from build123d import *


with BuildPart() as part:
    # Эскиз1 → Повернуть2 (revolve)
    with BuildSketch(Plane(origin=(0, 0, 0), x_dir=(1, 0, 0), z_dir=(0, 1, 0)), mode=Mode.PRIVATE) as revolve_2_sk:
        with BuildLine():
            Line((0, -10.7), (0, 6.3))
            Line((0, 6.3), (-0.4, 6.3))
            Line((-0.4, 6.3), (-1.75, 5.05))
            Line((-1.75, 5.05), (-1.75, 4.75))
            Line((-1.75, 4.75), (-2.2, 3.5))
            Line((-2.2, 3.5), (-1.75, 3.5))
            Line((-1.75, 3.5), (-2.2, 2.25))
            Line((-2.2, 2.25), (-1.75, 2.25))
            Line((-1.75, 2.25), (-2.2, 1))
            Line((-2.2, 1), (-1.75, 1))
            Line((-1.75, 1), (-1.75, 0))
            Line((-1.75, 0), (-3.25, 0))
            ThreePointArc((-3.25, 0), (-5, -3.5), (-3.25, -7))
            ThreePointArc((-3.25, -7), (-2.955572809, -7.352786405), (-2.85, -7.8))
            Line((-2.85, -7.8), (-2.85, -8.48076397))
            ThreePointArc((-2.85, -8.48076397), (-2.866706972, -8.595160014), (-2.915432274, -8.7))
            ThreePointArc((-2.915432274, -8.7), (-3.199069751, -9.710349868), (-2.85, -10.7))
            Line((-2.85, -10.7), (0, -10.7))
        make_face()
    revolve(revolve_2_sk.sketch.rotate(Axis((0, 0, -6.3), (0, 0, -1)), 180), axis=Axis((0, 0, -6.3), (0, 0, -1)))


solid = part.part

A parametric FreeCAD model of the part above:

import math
import FreeCAD as App
import Part
import Sketcher

V = App.Vector
Q = App.Units.Quantity

doc = App.newDocument("Part")
body = doc.addObject("PartDesign::Body", "Body")

# Sketch on XZ plane
sketch1 = body.newObject("Sketcher::SketchObject", "Sketch")
sketch1.AttachmentSupport = (doc.getObject("XZ_Plane"), [""])
sketch1.MapMode = "FlatFace"
sketch1.addGeometry(Part.LineSegment(V(0, 10.7, 0), V(0, -6.3, 0)), False)
sketch1.addGeometry(Part.LineSegment(V(0, -6.3, 0), V(-0.4, -6.3, 0)), False)
sketch1.addGeometry(Part.LineSegment(V(-0.4, -6.3, 0), V(-1.75, -5.05, 0)), False)
sketch1.addGeometry(Part.LineSegment(V(-1.75, -5.05, 0), V(-1.75, -4.75, 0)), False)
sketch1.addGeometry(Part.LineSegment(V(-1.75, -4.75, 0), V(-2.2, -3.5, 0)), False)
sketch1.addGeometry(Part.LineSegment(V(-2.2, -3.5, 0), V(-1.75, -3.5, 0)), False)
sketch1.addGeometry(Part.LineSegment(V(-1.75, -3.5, 0), V(-2.2, -2.25, 0)), False)
sketch1.addGeometry(Part.LineSegment(V(-2.2, -2.25, 0), V(-1.75, -2.25, 0)), False)
sketch1.addGeometry(Part.LineSegment(V(-1.75, -2.25, 0), V(-2.2, -1, 0)), False)
sketch1.addGeometry(Part.LineSegment(V(-2.2, -1, 0), V(-1.75, -1, 0)), False)
sketch1.addGeometry(Part.LineSegment(V(-1.75, -1, 0), V(-1.75, 0, 0)), False)
sketch1.addGeometry(Part.LineSegment(V(-1.75, 0, 0), V(-3.25, 0, 0)), False)
sketch1.addGeometry(Part.ArcOfCircle(Part.Circle(V(-0.62, 3.5, 0), V(0, 0, 1), 4.38), math.radians(127), math.radians(233)), False)
sketch1.addGeometry(Part.ArcOfCircle(Part.Circle(V(-3.85, 7.8, 0), V(0, 0, 1), 1), math.radians(-53), math.radians(0)), False)
sketch1.addGeometry(Part.LineSegment(V(-2.85, 7.8, 0), V(-2.85, 8.48, 0)), False)
sketch1.addGeometry(Part.ArcOfCircle(Part.Circle(V(-3.25, 8.48, 0), V(0, 0, 1), 0.4), math.radians(0), math.radians(33)), False)
sketch1.addGeometry(Part.ArcOfCircle(Part.Circle(V(-1.46, 9.65, 0), V(0, 0, 1), 1.74), math.radians(143), math.radians(213)), False)
sketch1.addGeometry(Part.LineSegment(V(-2.85, 10.7, 0), V(0, 10.7, 0)), False)
sketch1.addConstraint(Sketcher.Constraint("Coincident", 0, 2, 1, 1))
sketch1.addConstraint(Sketcher.Constraint("Coincident", 1, 2, 2, 1))
sketch1.addConstraint(Sketcher.Constraint("Coincident", 2, 2, 3, 1))
sketch1.addConstraint(Sketcher.Constraint("Coincident", 3, 2, 4, 1))
sketch1.addConstraint(Sketcher.Constraint("Coincident", 4, 2, 5, 1))
sketch1.addConstraint(Sketcher.Constraint("Coincident", 5, 2, 6, 1))
sketch1.addConstraint(Sketcher.Constraint("Coincident", 6, 2, 7, 1))
sketch1.addConstraint(Sketcher.Constraint("Coincident", 7, 2, 8, 1))
sketch1.addConstraint(Sketcher.Constraint("Coincident", 8, 2, 9, 1))
sketch1.addConstraint(Sketcher.Constraint("Coincident", 9, 2, 10, 1))
sketch1.addConstraint(Sketcher.Constraint("Coincident", 10, 2, 11, 1))
sketch1.addConstraint(Sketcher.Constraint("Coincident", 11, 2, 12, 2))
sketch1.addConstraint(Sketcher.Constraint("Tangent", 12, 1, 13, 1))
sketch1.addConstraint(Sketcher.Constraint("Tangent", 13, 2, 14, 1))
sketch1.addConstraint(Sketcher.Constraint("Tangent", 14, 2, 15, 1))
sketch1.addConstraint(Sketcher.Constraint("Tangent", 15, 2, 16, 2))
sketch1.addConstraint(Sketcher.Constraint("Coincident", 16, 1, 17, 1))
sketch1.addConstraint(Sketcher.Constraint("Coincident", 17, 2, 0, 1))
sketch1.addConstraint(Sketcher.Constraint("Vertical", 0))
sketch1.addConstraint(Sketcher.Constraint("Horizontal", 1))
sketch1.addConstraint(Sketcher.Constraint("Vertical", 3))
sketch1.addConstraint(Sketcher.Constraint("Horizontal", 5))
sketch1.addConstraint(Sketcher.Constraint("Horizontal", 7))
sketch1.addConstraint(Sketcher.Constraint("Horizontal", 9))
sketch1.addConstraint(Sketcher.Constraint("Vertical", 10))
sketch1.addConstraint(Sketcher.Constraint("Horizontal", 11))
sketch1.addConstraint(Sketcher.Constraint("Vertical", 14))
sketch1.addConstraint(Sketcher.Constraint("Horizontal", 17))
sketch1.addConstraint(Sketcher.Constraint("PointOnObject", 0, 2, -2))
sketch1.addConstraint(Sketcher.Constraint("PointOnObject", 10, 2, -1))
sketch1.addConstraint(Sketcher.Constraint("Parallel", 4, 6))
sketch1.addConstraint(Sketcher.Constraint("Parallel", 6, 8))
sketch1.addConstraint(Sketcher.Constraint("Vertical", 3, 2, 5, 2))
sketch1.addConstraint(Sketcher.Constraint("Vertical", 4, 2, 6, 2))
sketch1.addConstraint(Sketcher.Constraint("Vertical", 5, 2, 7, 2))
sketch1.addConstraint(Sketcher.Constraint("Vertical", 6, 2, 8, 2))
sketch1.addConstraint(Sketcher.Constraint("Vertical", 7, 2, 9, 2))
sketch1.addConstraint(Sketcher.Constraint("Vertical", 15, 3, 11, 2))
sketch1.addConstraint(Sketcher.Constraint("Vertical", 11, 2, 12, 1))
sketch1.addConstraint(Sketcher.Constraint("Vertical", 14, 2, 16, 1))
sketch1.addConstraint(Sketcher.Constraint("Radius", 13, Q("1 mm")))
sketch1.addConstraint(Sketcher.Constraint("Radius", 15, Q("0.4 mm")))
sketch1.addConstraint(Sketcher.Constraint("DistanceY", 0, 2, 0, 1, Q("17 mm")))
sketch1.addConstraint(Sketcher.Constraint("DistanceY", 10, 1, 10, 2, Q("1 mm")))
sketch1.addConstraint(Sketcher.Constraint("DistanceX", 1, 2, 1, 1, Q("0.4 mm")))
sketch1.addConstraint(Sketcher.Constraint("DistanceX", 11, 2, 11, 1, Q("1.5 mm")))
sketch1.addConstraint(Sketcher.Constraint("DistanceY", 3, 1, 3, 2, Q("0.3 mm")))
sketch1.addConstraint(Sketcher.Constraint("DistanceY", -1, 1, 12, 1, Q("7 mm")))
sketch1.addConstraint(Sketcher.Constraint("DistanceY", 4, 2, 12, 3, Q("7 mm")))
sketch1.addConstraint(Sketcher.Constraint("DistanceY", 15, 2, 16, 1, Q("2 mm")))
sketch1.addConstraint(Sketcher.Constraint("DistanceX", 5, 1, 5, 2, Q("0.45 mm")))
sketch1.addConstraint(Sketcher.Constraint("DistanceX", 17, 1, 17, 2, Q("2.85 mm")))
sketch1.addConstraint(Sketcher.Constraint("DistanceY", 0, 2, -1, 1, Q("6.3 mm")))
sketch1.addConstraint(Sketcher.Constraint("Radius", 16, Q("1.739617 mm")))
revolution = body.newObject("PartDesign::Revolution", "Revolution")
revolution.Profile = sketch1
revolution.ReferenceAxis = (sketch1, ["V_Axis"])
revolution.Angle = 360

doc.recompute()
